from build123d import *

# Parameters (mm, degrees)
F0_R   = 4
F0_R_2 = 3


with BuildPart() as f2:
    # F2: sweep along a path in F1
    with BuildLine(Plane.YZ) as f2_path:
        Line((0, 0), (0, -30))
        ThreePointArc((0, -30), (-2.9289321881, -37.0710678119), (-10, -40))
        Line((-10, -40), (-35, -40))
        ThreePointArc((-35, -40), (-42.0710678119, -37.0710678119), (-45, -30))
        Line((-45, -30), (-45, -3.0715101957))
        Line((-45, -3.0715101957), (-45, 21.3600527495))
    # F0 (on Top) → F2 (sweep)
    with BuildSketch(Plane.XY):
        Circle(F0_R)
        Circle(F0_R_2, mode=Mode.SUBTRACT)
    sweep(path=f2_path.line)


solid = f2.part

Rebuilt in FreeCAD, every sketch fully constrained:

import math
import FreeCAD as App
import Part
import Sketcher

V = App.Vector
Q = App.Units.Quantity

doc = App.newDocument("Part")
body = doc.addObject("PartDesign::Body", "Body")

# Sketch on XY plane
sketch1 = body.newObject("Sketcher::SketchObject", "Sketch")
sketch1.AttachmentSupport = (doc.getObject("XY_Plane"), [""])
sketch1.MapMode = "FlatFace"
sketch1.addGeometry([
    Part.Circle(V(0, 0, 0), V(0, 0, 1), 4),
    Part.Circle(V(0, 0, 0), V(0, 0, 1), 3),
], False)
sketch1.addConstraint([
    Sketcher.Constraint("Coincident", 0, 3, -1, 1),
    Sketcher.Constraint("Coincident", 1, 3, -1, 1),
    Sketcher.Constraint("Diameter", 0, Q("8 mm")),
    Sketcher.Constraint("Diameter", 1, Q("6 mm")),
])

# Sketch on YZ plane
sketch2 = body.newObject("Sketcher::SketchObject", "Sketch001")
sketch2.AttachmentSupport = (doc.getObject("YZ_Plane"), [""])
sketch2.MapMode = "FlatFace"
sketch2.addGeometry([
    Part.LineSegment(V(0, 0, 0), V(0, -30, 0)),  # 0
    Part.ArcOfCircle(Part.Circle(V(-10, -30, 0), V(0, 0, 1), 10), math.radians(-90), math.radians(0)),  # 1
    Part.LineSegment(V(-10, -40, 0), V(-35, -40, 0)),  # 2
    Part.ArcOfCircle(Part.Circle(V(-35, -30, 0), V(0, 0, 1), 10), math.radians(180), math.radians(270)),  # 3
    Part.LineSegment(V(-45, -30, 0), V(-45, 21, 0)),  # 4
], False)
sketch2.addConstraint([
    Sketcher.Constraint("Tangent", 0, 2, 1, 2),
    Sketcher.Constraint("Tangent", 1, 1, 2, 1),
    Sketcher.Constraint("Tangent", 2, 2, 3, 2),
    Sketcher.Constraint("Tangent", 3, 1, 4, 1),
    Sketcher.Constraint("Vertical", 0),
    Sketcher.Constraint("Horizontal", 2),
    Sketcher.Constraint("Vertical", 4),
    Sketcher.Constraint("Coincident", 0, 1, -1, 1),
    Sketcher.Constraint("Equal", 1, 3),
    Sketcher.Constraint("Radius", 1, Q("10 mm")),
    Sketcher.Constraint("DistanceX", 2, 2, 2, 1, Q("25 mm")),
    Sketcher.Constraint("DistanceY", 0, 2, 0, 1, Q("30 mm")),
    Sketcher.Constraint("DistanceY", 4, 1, 4, 2, Q("51.360053 mm")),
])
doc.recompute()

additivepipe = body.newObject("PartDesign::AdditivePipe", "AdditivePipe")
additivepipe.Profile = sketch1
additivepipe.Spine = (sketch2, ["Edge1", "Edge2", "Edge3", "Edge4", "Edge5"])

doc.recompute()
